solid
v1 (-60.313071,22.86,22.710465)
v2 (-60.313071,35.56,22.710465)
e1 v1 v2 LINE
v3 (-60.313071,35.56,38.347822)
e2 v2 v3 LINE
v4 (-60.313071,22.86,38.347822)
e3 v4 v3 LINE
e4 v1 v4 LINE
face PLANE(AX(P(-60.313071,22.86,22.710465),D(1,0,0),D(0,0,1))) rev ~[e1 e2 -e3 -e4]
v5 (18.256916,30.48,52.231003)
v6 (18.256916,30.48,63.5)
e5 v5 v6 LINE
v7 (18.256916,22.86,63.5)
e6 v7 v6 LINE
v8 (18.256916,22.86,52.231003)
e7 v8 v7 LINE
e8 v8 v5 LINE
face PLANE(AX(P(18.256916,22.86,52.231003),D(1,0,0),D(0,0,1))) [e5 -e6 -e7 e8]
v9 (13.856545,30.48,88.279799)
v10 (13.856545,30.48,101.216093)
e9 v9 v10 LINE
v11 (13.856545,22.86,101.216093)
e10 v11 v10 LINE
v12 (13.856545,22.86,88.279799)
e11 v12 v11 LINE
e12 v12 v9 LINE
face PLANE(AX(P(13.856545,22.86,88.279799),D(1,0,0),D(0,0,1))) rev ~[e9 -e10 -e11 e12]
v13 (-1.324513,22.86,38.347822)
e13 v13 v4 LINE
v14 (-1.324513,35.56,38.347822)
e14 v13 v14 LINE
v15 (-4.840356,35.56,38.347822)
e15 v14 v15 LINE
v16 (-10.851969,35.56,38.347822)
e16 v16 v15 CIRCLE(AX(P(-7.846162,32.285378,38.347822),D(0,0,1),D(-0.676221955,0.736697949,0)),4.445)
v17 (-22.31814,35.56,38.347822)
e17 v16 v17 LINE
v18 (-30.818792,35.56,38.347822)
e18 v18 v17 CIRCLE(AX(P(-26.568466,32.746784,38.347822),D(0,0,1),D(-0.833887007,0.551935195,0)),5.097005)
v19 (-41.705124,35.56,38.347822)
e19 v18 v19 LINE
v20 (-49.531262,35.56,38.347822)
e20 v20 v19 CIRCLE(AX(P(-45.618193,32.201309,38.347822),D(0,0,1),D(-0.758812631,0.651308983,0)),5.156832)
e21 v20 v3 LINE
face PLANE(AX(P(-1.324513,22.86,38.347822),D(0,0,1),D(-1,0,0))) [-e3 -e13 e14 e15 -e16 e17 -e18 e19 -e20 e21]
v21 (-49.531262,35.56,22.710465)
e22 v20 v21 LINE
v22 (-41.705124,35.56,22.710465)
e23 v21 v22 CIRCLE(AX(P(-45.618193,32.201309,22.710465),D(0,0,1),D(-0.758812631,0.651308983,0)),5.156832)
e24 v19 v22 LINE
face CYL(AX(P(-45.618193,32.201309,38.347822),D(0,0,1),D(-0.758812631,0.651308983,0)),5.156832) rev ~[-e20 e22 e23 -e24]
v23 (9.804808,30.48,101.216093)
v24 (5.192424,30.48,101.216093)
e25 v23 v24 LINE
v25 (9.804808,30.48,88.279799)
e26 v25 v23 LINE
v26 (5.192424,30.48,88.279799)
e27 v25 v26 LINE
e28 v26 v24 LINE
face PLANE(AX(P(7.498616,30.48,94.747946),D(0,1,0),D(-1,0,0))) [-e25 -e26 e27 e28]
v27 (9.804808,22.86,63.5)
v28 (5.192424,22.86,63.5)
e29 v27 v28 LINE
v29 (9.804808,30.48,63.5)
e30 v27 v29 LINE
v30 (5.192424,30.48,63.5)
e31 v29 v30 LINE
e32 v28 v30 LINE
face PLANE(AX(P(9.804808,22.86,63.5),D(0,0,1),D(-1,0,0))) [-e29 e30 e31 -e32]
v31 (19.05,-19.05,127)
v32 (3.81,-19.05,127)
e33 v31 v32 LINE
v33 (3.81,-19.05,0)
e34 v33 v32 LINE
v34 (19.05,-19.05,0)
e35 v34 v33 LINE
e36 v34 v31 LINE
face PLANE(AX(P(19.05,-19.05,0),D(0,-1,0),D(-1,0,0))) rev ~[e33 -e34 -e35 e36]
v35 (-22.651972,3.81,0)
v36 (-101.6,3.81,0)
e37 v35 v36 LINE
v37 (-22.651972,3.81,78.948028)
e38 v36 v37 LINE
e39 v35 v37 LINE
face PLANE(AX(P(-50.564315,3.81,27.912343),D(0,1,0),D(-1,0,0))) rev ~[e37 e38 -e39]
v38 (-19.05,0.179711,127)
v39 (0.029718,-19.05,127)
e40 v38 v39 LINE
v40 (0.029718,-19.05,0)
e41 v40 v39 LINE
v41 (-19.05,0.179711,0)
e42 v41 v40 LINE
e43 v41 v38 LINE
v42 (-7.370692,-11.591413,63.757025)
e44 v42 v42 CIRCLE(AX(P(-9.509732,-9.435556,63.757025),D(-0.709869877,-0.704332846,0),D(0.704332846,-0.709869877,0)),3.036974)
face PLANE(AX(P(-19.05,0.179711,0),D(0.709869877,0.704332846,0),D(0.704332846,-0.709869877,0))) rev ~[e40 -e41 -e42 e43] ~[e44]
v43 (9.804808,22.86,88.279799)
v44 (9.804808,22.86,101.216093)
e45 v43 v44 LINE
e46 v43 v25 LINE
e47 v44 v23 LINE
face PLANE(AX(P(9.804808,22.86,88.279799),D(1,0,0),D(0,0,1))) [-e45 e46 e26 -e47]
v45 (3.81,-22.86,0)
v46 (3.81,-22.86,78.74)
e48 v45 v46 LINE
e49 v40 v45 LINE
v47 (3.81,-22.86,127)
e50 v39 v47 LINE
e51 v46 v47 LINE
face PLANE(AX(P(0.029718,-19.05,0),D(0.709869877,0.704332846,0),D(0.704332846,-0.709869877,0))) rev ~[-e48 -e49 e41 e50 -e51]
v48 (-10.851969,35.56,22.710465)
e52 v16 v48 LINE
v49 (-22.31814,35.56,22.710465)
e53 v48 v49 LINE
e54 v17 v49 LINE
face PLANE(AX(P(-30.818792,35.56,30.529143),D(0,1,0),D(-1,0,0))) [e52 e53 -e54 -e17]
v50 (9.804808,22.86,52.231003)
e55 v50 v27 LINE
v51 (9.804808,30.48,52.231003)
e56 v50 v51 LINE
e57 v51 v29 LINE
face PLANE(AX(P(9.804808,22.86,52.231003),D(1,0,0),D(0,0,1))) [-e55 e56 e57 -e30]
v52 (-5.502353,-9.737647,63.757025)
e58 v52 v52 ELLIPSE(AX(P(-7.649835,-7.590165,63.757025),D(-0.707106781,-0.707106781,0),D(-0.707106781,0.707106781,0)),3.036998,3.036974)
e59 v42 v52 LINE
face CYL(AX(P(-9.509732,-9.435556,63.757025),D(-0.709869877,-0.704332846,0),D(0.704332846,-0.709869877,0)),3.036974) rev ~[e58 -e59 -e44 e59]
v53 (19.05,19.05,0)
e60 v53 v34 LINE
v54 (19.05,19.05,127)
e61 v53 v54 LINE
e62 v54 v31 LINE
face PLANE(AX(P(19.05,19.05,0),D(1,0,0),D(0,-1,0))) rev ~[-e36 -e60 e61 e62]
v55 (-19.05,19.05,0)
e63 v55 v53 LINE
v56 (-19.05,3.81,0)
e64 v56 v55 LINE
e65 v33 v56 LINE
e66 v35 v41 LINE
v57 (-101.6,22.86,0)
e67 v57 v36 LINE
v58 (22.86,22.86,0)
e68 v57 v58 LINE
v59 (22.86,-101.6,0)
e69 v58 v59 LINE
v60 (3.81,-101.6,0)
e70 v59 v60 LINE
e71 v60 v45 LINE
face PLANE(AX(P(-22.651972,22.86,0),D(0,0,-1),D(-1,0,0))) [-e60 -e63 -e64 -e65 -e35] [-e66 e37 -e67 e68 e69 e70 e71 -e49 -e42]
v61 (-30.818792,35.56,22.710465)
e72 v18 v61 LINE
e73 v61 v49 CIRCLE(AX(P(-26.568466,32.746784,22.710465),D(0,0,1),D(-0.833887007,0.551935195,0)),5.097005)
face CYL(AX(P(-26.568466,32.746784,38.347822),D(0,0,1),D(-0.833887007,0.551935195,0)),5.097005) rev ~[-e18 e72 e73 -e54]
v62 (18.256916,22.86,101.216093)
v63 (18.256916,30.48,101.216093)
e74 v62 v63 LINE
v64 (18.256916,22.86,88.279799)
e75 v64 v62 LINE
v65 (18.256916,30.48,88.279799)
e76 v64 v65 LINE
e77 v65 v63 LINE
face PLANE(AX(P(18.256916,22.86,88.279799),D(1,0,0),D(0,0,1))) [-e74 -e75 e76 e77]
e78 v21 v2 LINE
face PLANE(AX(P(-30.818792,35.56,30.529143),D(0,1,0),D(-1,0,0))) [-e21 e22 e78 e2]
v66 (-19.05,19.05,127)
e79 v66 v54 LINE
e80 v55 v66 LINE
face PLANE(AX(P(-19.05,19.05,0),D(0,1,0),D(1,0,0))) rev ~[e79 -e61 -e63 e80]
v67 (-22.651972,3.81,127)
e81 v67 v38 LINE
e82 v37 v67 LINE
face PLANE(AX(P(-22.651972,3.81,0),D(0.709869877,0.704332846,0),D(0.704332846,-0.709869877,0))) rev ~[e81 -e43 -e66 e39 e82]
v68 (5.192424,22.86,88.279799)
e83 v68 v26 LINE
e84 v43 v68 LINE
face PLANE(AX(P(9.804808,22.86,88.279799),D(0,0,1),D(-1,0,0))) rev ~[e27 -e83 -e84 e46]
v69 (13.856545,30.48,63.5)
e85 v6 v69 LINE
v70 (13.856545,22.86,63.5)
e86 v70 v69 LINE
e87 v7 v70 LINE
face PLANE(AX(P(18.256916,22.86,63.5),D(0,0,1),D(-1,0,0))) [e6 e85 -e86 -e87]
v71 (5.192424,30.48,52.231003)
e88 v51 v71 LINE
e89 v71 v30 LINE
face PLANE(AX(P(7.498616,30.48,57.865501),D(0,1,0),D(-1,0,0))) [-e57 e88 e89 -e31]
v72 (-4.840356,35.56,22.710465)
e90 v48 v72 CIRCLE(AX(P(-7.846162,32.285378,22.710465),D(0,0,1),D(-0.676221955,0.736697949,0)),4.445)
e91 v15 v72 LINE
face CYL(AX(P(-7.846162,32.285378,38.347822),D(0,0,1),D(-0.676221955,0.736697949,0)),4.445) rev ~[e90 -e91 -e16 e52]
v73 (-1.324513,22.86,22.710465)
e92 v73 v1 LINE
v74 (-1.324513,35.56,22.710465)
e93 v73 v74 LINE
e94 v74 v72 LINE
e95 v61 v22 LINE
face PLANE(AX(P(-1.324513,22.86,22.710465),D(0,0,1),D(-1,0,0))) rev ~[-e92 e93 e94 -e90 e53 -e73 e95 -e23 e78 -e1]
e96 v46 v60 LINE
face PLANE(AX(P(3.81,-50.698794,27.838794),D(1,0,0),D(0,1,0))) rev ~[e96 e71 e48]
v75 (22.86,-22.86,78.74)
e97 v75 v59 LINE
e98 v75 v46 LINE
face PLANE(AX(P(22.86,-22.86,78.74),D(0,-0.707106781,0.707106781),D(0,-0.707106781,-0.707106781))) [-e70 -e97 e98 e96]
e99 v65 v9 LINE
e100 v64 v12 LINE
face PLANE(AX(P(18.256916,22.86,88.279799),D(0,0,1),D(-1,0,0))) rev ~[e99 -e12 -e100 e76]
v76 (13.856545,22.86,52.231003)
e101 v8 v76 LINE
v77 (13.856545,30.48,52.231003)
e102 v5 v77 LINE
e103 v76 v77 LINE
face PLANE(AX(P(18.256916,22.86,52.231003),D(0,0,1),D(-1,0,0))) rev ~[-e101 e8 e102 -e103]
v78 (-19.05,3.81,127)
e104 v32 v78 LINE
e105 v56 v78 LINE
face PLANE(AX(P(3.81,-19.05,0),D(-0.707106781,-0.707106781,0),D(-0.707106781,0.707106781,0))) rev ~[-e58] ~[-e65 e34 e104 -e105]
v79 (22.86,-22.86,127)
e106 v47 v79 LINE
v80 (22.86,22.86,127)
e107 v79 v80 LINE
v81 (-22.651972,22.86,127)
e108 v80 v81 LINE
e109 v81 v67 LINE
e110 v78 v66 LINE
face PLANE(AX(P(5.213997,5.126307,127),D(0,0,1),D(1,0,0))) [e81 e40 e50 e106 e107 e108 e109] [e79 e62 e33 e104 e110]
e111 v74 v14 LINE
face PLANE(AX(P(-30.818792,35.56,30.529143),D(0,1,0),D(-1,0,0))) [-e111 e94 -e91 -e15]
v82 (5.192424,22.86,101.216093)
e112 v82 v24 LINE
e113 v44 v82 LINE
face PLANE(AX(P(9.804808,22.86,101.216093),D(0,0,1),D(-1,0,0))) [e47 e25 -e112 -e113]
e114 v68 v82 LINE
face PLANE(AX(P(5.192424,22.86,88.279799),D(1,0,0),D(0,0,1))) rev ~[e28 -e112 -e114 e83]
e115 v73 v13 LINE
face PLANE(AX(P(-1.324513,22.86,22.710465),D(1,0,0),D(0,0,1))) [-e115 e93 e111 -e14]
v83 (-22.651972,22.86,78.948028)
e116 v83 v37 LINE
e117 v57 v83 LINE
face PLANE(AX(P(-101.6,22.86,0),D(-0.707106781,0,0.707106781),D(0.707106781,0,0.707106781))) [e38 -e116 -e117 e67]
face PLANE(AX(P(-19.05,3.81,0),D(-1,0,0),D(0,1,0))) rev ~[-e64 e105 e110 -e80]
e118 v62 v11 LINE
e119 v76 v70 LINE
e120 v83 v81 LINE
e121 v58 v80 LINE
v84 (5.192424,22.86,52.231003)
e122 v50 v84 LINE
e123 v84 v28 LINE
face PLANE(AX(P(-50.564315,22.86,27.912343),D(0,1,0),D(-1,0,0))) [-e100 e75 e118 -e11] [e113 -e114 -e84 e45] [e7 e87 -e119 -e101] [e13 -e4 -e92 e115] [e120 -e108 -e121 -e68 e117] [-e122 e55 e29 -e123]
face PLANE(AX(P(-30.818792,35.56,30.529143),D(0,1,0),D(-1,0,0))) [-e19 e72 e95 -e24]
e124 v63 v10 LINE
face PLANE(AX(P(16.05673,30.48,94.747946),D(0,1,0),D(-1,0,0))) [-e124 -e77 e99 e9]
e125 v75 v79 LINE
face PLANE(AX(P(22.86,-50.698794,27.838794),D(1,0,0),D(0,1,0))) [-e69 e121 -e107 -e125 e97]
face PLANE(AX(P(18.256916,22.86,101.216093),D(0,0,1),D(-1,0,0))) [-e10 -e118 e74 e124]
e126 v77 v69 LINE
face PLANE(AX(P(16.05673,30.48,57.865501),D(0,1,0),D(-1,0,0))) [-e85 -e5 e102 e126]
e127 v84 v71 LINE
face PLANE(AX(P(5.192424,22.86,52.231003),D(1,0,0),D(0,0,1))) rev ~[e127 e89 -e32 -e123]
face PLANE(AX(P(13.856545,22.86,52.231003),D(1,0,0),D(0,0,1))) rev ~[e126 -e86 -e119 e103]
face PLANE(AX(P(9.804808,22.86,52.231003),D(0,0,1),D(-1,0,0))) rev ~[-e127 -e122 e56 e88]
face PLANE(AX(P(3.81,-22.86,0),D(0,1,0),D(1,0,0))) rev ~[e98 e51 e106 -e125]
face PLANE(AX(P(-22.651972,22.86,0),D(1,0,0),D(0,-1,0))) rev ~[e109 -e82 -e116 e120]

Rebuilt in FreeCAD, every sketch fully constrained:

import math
import FreeCAD as App
import Part
import Sketcher

V = App.Vector
Q = App.Units.Quantity


def add_polygon(sketch, points):
    """Adds a closed chain of lines whose ends are joined by coincident constraints."""
    first, n = sketch.GeometryCount, len(points)
    for a, b in zip(points, points[1:] + points[:1]):
        sketch.addGeometry(Part.LineSegment(App.Vector(*a, 0), App.Vector(*b, 0)), False)
    for i in range(n):
        sketch.addConstraint(Sketcher.Constraint("Coincident", first + i, 2, first + (i + 1) % n, 1))

doc = App.newDocument("Part")
body = doc.addObject("PartDesign::Body", "Body")

sketch1 = body.newObject("Sketcher::SketchObject", "Sketch")
sketch1.AttachmentSupport = (doc.getObject("XY_Plane"), [""])
sketch1.MapMode = "FlatFace"
add_polygon(sketch1, [(0, -19), (4, -23), (23, -23), (23, 23), (-23, 23), (-23, 4), (-19, 0)])
add_polygon(sketch1, [(-19, 19), (19, 19), (19, -19), (4, -19), (-19, 4)])
sketch1.addConstraint(Sketcher.Constraint("Horizontal", 1))
sketch1.addConstraint(Sketcher.Constraint("Vertical", 2))
sketch1.addConstraint(Sketcher.Constraint("Horizontal", 3))
sketch1.addConstraint(Sketcher.Constraint("Vertical", 4))
sketch1.addConstraint(Sketcher.Constraint("Horizontal", 7))
sketch1.addConstraint(Sketcher.Constraint("Vertical", 8))
sketch1.addConstraint(Sketcher.Constraint("Horizontal", 9))
sketch1.addConstraint(Sketcher.Constraint("Vertical", 11))
sketch1.addConstraint(Sketcher.Constraint("Symmetric", 8, 2, 11, 2, -1, 1))
sketch1.addConstraint(Sketcher.Constraint("Parallel", 0, 5))
sketch1.addConstraint(Sketcher.Constraint("Parallel", 5, 6))
sketch1.addConstraint(Sketcher.Constraint("Horizontal", 6, 2, 8, 2))
sketch1.addConstraint(Sketcher.Constraint("Horizontal", 4, 2, 10, 2))
sketch1.addConstraint(Sketcher.Constraint("Vertical", 0, 2, 9, 2))
sketch1.addConstraint(Sketcher.Constraint("Vertical", 5, 2, 10, 2))
sketch1.addConstraint(Sketcher.Constraint("Equal", 1, 4))
sketch1.addConstraint(Sketcher.Constraint("Equal", 7, 8))
sketch1.addConstraint(Sketcher.Constraint("Equal", 9, 11))
sketch1.addConstraint(Sketcher.Constraint("DistanceX", 7, 1, 7, 2, Q("1.5 in")))
sketch1.addConstraint(Sketcher.Constraint("DistanceX", 9, 2, 9, 1, Q("0.6 in")))
sketch1.addConstraint(Sketcher.Constraint("DistanceY", 2, 1, 2, 2, Q("1.8 in")))
sketch1.addConstraint(Sketcher.Constraint("DistanceX", 1, 1, 1, 2, Q("0.75 in")))
sketch1.addConstraint(Sketcher.Constraint("Distance", 0, Q("5.367181 mm")))
pad1 = body.newObject("PartDesign::Pad", "Pad")
pad1.Profile = sketch1
pad1.Length = Q("5 in")

sketch2 = body.newObject("Sketcher::SketchObject", "Sketch001")
sketch2.AttachmentSupport = (doc.getObject("YZ_Plane"), [""])
sketch2.MapMode = "FlatFace"
sketch2.AttachmentOffset = App.Placement(V(0, 0, 0.9 * 25.4), App.Rotation())
add_polygon(sketch2, [(-23, 0), (-23, 79), (-102, 0)])
sketch2.addConstraint(Sketcher.Constraint("Vertical", 0))
sketch2.addConstraint(Sketcher.Constraint("Horizontal", 2))
sketch2.addConstraint(Sketcher.Constraint("PointOnObject", 1, 2, -1))
sketch2.addConstraint(Sketcher.Constraint("Equal", 2, 0))
sketch2.addConstraint(Sketcher.Constraint("DistanceX", 2, 1, 2, 2, Q("3.1 in")))
sketch2.addConstraint(Sketcher.Constraint("DistanceX", 1, 2, -1, 1, Q("4 in")))
pad2 = body.newObject("PartDesign::Pad", "Pad001")
pad2.Profile = sketch2
pad2.Length = Q("0.75 in")
pad2.Reversed = True

sketch3 = body.newObject("Sketcher::SketchObject", "Sketch002")
sketch3.AttachmentSupport = (doc.getObject("XZ_Plane"), [""])
sketch3.MapMode = "FlatFace"
sketch3.AttachmentOffset = App.Placement(V(0, 0, -0.9 * 25.4), App.Rotation())
add_polygon(sketch3, [(-102, 0), (-23, 79), (-23, 0)])
sketch3.addConstraint(Sketcher.Constraint("Vertical", 1))
sketch3.addConstraint(Sketcher.Constraint("Horizontal", 2))
sketch3.addConstraint(Sketcher.Constraint("PointOnObject", 1, 2, -1))
sketch3.addConstraint(Sketcher.Constraint("Equal", 2, 1))
sketch3.addConstraint(Sketcher.Constraint("DistanceX", 2, 2, -1, 1, Q("4 in")))
sketch3.addConstraint(Sketcher.Constraint("Distance", 0, Q("111.649372 mm")))
pad3 = body.newObject("PartDesign::Pad", "Pad002")
pad3.Profile = sketch3
pad3.Length = Q("0.75 in")

sketch4 = body.newObject("Sketcher::SketchObject", "Sketch003")
sketch4.Placement = App.Placement(V(-9.509732, -9.435556, 0), App.Rotation(V(0.704332846, -0.709869877, 0), V(0, 0, 1), V(-0.709869877, -0.704332846, 0), "ZXY"))
sketch4.addGeometry(Part.Circle(V(0, 63.8, 0), V(0, 0, 1), 3), False)
sketch4.addConstraint(Sketcher.Constraint("PointOnObject", 0, 3, -2))
sketch4.addConstraint(Sketcher.Constraint("Diameter", 0, Q("6.073949 mm")))
sketch4.addConstraint(Sketcher.Constraint("DistanceY", -1, 1, 0, 3, Q("63.757025 mm")))
pocket1 = body.newObject("PartDesign::Pocket", "Pocket")
pocket1.Profile = sketch4
pocket1.Length = Q("1 in")

sketch5 = body.newObject("Sketcher::SketchObject", "Sketch004")
sketch5.AttachmentSupport = (doc.getObject("XZ_Plane"), [""])
sketch5.MapMode = "FlatFace"
sketch5.AttachmentOffset = App.Placement(V(0, 0, -0.9 * 25.4), App.Rotation())
add_polygon(sketch5, [(18.3, 101.2), (18.3, 88.3), (13.9, 88.3), (13.9, 101.2)])
add_polygon(sketch5, [(9.8, 101.2), (9.8, 88.3), (5.2, 88.3), (5.2, 101.2)])
add_polygon(sketch5, [(18.3, 63.5), (18.3, 52.2), (13.9, 52.2), (13.9, 63.5)])
add_polygon(sketch5, [(9.8, 63.5), (9.8, 52.2), (5.2, 52.2), (5.2, 63.5)])
sketch5.addConstraint(Sketcher.Constraint("Vertical", 0))
sketch5.addConstraint(Sketcher.Constraint("Horizontal", 1))
sketch5.addConstraint(Sketcher.Constraint("Vertical", 2))
sketch5.addConstraint(Sketcher.Constraint("Horizontal", 3))
sketch5.addConstraint(Sketcher.Constraint("Vertical", 4))
sketch5.addConstraint(Sketcher.Constraint("Horizontal", 5))
sketch5.addConstraint(Sketcher.Constraint("Vertical", 6))
sketch5.addConstraint(Sketcher.Constraint("Horizontal", 7))
sketch5.addConstraint(Sketcher.Constraint("Vertical", 8))
sketch5.addConstraint(Sketcher.Constraint("Horizontal", 9))
sketch5.addConstraint(Sketcher.Constraint("Vertical", 10))
sketch5.addConstraint(Sketcher.Constraint("Horizontal", 11))
sketch5.addConstraint(Sketcher.Constraint("Vertical", 12))
sketch5.addConstraint(Sketcher.Constraint("Horizontal", 13))
sketch5.addConstraint(Sketcher.Constraint("Vertical", 14))
sketch5.addConstraint(Sketcher.Constraint("Horizontal", 15))
sketch5.addConstraint(Sketcher.Constraint("Horizontal", 1, 2, 4, 2))
sketch5.addConstraint(Sketcher.Constraint("Horizontal", 3, 2, 6, 2))
sketch5.addConstraint(Sketcher.Constraint("Horizontal", 9, 2, 12, 2))
sketch5.addConstraint(Sketcher.Constraint("Horizontal", 11, 2, 14, 2))
sketch5.addConstraint(Sketcher.Constraint("Vertical", 3, 2, 8, 2))
sketch5.addConstraint(Sketcher.Constraint("Vertical", 2, 2, 9, 2))
sketch5.addConstraint(Sketcher.Constraint("Vertical", 7, 2, 12, 2))
sketch5.addConstraint(Sketcher.Constraint("Vertical", 6, 2, 13, 2))
sketch5.addConstraint(Sketcher.Constraint("DistanceY", -1, 1, 10, 2, Q("2.5 in")))
sketch5.addConstraint(Sketcher.Constraint("DistanceX", 1, 2, 1, 1, Q("4.400371 mm")))
sketch5.addConstraint(Sketcher.Constraint("DistanceY", -1, 1, 0, 2, Q("88.279799 mm")))
sketch5.addConstraint(Sketcher.Constraint("DistanceX", 5, 2, 5, 1, Q("4.612384 mm")))
sketch5.addConstraint(Sketcher.Constraint("DistanceY", 0, 2, 0, 1, Q("12.936294 mm")))
sketch5.addConstraint(Sketcher.Constraint("DistanceY", 8, 2, 8, 1, Q("11.268997 mm")))
sketch5.addConstraint(Sketcher.Constraint("DistanceX", 4, 2, 0, 2, Q("8.452108 mm")))
sketch5.addConstraint(Sketcher.Constraint("DistanceX", -1, 1, 0, 2, Q("18.256916 mm")))
pad4 = body.newObject("PartDesign::Pad", "Pad003")
pad4.Profile = sketch5
pad4.Length = Q("0.3 in")
pad4.Reversed = True

sketch6 = body.newObject("Sketcher::SketchObject", "Sketch005")
sketch6.AttachmentSupport = (doc.getObject("XZ_Plane"), [""])
sketch6.MapMode = "FlatFace"
sketch6.AttachmentOffset = App.Placement(V(0, 0, -0.9 * 25.4), App.Rotation())
add_polygon(sketch6, [(-1, 38), (-1, 23), (-60, 23), (-60, 38)])
sketch6.addConstraint(Sketcher.Constraint("Vertical", 0))
sketch6.addConstraint(Sketcher.Constraint("Horizontal", 1))
sketch6.addConstraint(Sketcher.Constraint("Vertical", 2))
sketch6.addConstraint(Sketcher.Constraint("Horizontal", 3))
sketch6.addConstraint(Sketcher.Constraint("DistanceX", 1, 2, 1, 1, Q("58.988559 mm")))
sketch6.addConstraint(Sketcher.Constraint("DistanceY", 0, 2, 0, 1, Q("15.637357 mm")))
sketch6.addConstraint(Sketcher.Constraint("DistanceX", 1, 2, -1, 1, Q("60.313071 mm")))
sketch6.addConstraint(Sketcher.Constraint("DistanceY", -1, 1, 2, 2, Q("38.347822 mm")))
pad5 = body.newObject("PartDesign::Pad", "Pad004")
pad5.Profile = sketch6
pad5.Length = Q("0.5 in")
pad5.Reversed = True

sketch7 = body.newObject("Sketcher::SketchObject", "Sketch006")
sketch7.AttachmentSupport = (doc.getObject("XY_Plane"), [""])
sketch7.MapMode = "FlatFace"
sketch7.AttachmentOffset = App.Placement(V(0, 0, 38.347822), App.Rotation())
sketch7.addGeometry(Part.ArcOfCircle(Part.Circle(V(-45.6, 32.2, 0), V(0, 0, 1), 5.2), math.radians(139), math.radians(401)), False)
sketch7.addGeometry(Part.LineSegment(V(-41.7, 35.6, 0), V(-49.5, 35.6, 0)), False)
sketch7.addGeometry(Part.ArcOfCircle(Part.Circle(V(-26.6, 32.7, 0), V(0, 0, 1), 5.1), math.radians(147), math.radians(393)), False)
sketch7.addGeometry(Part.LineSegment(V(-22.3, 35.6, 0), V(-30.8, 35.6, 0)), False)
sketch7.addGeometry(Part.LineSegment(V(-4.8, 35.6, 0), V(-10.9, 35.6, 0)), False)
sketch7.addGeometry(Part.ArcOfCircle(Part.Circle(V(-7.8, 32.3, 0), V(0, 0, 1), 4.4), math.radians(133), math.radians(407)), False)
sketch7.addConstraint(Sketcher.Constraint("Coincident", 0, 1, 1, 2))
sketch7.addConstraint(Sketcher.Constraint("Coincident", 1, 1, 0, 2))
sketch7.addConstraint(Sketcher.Constraint("Coincident", 2, 1, 3, 2))
sketch7.addConstraint(Sketcher.Constraint("Coincident", 3, 1, 2, 2))
sketch7.addConstraint(Sketcher.Constraint("Coincident", 4, 1, 5, 2))
sketch7.addConstraint(Sketcher.Constraint("Coincident", 5, 1, 4, 2))
sketch7.addConstraint(Sketcher.Constraint("Horizontal", 1))
sketch7.addConstraint(Sketcher.Constraint("Horizontal", 3))
sketch7.addConstraint(Sketcher.Constraint("Horizontal", 4))
sketch7.addConstraint(Sketcher.Constraint("Horizontal", 1, 1, 2, 1))
sketch7.addConstraint(Sketcher.Constraint("Horizontal", 3, 1, 4, 1))
sketch7.addConstraint(Sketcher.Constraint("Radius", 5, Q("0.175 in")))
sketch7.addConstraint(Sketcher.Constraint("DistanceY", -1, 1, 0, 1, Q("1.4 in")))
sketch7.addConstraint(Sketcher.Constraint("Radius", 0, Q("5.156832 mm")))
sketch7.addConstraint(Sketcher.Constraint("Radius", 2, Q("5.097005 mm")))
sketch7.addConstraint(Sketcher.Constraint("DistanceX", 1, 2, 1, 1, Q("7.826138 mm")))
sketch7.addConstraint(Sketcher.Constraint("DistanceX", 0, 1, 5, 3, Q("41.6851 mm")))
sketch7.addConstraint(Sketcher.Constraint("DistanceX", 0, 3, 2, 1, Q("14.799401 mm")))
sketch7.addConstraint(Sketcher.Constraint("DistanceX", 3, 2, 3, 1, Q("8.500652 mm")))
sketch7.addConstraint(Sketcher.Constraint("DistanceX", 4, 2, 4, 1, Q("6.011613 mm")))
sketch7.addConstraint(Sketcher.Constraint("DistanceX", 3, 1, -1, 1, Q("22.31814 mm")))
pocket2 = body.newObject("PartDesign::Pocket", "Pocket001")
pocket2.Profile = sketch7
pocket2.Length = Q("1 in")

doc.recompute()
